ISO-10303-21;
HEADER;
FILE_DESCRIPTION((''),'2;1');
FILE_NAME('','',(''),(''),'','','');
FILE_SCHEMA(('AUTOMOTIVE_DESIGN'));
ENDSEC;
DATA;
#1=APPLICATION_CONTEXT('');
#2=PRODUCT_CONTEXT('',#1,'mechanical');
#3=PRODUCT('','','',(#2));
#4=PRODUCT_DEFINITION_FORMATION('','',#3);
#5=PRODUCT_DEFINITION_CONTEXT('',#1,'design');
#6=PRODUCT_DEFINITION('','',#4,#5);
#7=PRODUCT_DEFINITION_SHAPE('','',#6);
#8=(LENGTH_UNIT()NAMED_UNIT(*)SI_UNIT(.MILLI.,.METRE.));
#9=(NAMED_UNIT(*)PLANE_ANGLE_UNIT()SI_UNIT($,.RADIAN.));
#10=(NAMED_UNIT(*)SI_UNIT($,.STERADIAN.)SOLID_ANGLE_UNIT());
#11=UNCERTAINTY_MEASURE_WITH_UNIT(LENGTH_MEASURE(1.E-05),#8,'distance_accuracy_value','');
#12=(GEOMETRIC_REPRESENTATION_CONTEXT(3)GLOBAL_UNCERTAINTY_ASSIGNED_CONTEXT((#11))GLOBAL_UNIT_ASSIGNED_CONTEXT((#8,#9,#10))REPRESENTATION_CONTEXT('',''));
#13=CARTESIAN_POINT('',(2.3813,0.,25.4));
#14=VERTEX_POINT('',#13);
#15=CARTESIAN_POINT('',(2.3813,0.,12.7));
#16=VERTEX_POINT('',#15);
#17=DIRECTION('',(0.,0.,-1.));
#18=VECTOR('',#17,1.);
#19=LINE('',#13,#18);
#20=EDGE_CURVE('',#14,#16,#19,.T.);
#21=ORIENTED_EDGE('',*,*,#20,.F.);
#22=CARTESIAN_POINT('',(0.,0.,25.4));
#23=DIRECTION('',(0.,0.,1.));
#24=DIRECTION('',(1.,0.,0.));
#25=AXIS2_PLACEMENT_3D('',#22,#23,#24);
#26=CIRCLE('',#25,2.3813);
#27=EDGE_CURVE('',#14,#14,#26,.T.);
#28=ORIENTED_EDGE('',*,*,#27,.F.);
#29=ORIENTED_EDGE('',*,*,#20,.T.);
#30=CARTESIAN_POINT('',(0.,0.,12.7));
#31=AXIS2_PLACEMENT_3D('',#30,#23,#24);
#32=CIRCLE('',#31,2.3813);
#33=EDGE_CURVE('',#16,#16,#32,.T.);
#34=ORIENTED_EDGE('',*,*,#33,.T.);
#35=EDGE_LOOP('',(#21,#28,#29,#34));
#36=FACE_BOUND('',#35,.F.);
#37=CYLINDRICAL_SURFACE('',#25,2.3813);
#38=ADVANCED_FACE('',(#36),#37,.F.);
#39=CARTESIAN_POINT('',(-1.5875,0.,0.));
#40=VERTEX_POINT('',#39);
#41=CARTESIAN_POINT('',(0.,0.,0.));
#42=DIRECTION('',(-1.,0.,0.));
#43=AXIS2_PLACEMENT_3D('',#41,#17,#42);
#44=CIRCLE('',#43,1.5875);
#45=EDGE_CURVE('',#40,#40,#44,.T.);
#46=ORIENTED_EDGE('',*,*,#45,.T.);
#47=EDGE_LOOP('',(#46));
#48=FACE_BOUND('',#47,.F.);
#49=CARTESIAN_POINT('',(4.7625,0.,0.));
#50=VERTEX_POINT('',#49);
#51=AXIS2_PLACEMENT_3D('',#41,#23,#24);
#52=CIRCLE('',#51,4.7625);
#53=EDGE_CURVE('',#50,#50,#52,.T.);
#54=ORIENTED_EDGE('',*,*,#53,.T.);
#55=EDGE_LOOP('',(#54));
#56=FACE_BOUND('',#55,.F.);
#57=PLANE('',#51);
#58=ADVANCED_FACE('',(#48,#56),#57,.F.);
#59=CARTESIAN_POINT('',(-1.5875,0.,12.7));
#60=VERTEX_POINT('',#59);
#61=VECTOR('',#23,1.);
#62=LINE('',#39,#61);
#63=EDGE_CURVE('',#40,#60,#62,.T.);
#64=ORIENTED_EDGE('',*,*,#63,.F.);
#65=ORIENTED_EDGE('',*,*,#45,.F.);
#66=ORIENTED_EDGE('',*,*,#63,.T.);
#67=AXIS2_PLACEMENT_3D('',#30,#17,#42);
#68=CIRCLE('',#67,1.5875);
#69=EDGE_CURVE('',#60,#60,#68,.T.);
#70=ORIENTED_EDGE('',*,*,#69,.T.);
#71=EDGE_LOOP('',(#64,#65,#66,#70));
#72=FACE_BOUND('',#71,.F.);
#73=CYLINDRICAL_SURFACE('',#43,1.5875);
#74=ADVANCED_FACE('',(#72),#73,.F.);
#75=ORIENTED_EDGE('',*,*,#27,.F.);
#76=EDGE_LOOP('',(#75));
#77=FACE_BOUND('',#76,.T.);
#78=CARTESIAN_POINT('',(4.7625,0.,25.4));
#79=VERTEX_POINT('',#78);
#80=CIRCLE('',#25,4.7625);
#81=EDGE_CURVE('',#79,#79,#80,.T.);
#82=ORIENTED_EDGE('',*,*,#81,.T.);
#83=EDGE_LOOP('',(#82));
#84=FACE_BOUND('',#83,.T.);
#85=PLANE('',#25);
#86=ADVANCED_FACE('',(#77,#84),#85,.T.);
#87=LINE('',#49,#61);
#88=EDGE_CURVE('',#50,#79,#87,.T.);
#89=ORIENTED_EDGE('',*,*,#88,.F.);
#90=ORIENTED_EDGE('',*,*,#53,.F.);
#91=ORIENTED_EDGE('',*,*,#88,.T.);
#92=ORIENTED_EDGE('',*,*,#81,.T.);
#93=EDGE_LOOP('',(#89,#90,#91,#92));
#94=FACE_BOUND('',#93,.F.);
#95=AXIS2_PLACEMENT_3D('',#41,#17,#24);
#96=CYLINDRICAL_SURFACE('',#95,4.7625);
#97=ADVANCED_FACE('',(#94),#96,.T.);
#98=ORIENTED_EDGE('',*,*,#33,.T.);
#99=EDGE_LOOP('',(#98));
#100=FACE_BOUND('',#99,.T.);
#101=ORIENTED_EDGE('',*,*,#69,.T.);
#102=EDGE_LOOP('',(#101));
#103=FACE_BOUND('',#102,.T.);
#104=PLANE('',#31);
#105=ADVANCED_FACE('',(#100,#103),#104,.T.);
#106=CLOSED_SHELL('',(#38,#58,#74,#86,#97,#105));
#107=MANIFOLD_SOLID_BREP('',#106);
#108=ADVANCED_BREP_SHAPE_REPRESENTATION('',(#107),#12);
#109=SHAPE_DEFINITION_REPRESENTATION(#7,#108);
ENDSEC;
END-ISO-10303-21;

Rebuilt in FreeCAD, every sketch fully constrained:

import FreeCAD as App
import Part
import Sketcher

V = App.Vector
Q = App.Units.Quantity

doc = App.newDocument("Part")
body = doc.addObject("PartDesign::Body", "Body")

sketch1 = body.newObject("Sketcher::SketchObject", "Sketch")
sketch1.AttachmentSupport = (doc.getObject("XY_Plane"), [""])
sketch1.MapMode = "FlatFace"
sketch1.addGeometry(Part.Circle(V(0, 0, 0), V(0, 0, 1), 4.8), False)
sketch1.addConstraint([
    Sketcher.Constraint("Coincident", 0, 3, -1, 1),
    Sketcher.Constraint("Diameter", 0, Q("0.375 in")),
])
pad1 = body.newObject("PartDesign::Pad", "Pad")
pad1.Profile = sketch1
pad1.Length = Q("1 in")

sketch2 = body.newObject("Sketcher::SketchObject", "Sketch001")
sketch2.AttachmentSupport = (doc.getObject("XY_Plane"), [""])
sketch2.MapMode = "FlatFace"
sketch2.AttachmentOffset = App.Placement(V(0, 0, 1 * 25.4), App.Rotation())
sketch2.addGeometry(Part.Circle(V(0, 0, 0), V(0, 0, 1), 2.4), False)
sketch2.addConstraint([
    Sketcher.Constraint("Coincident", 0, 3, -1, 1),
    Sketcher.Constraint("Diameter", 0, Q("0.1875 in")),
])
pocket1 = body.newObject("PartDesign::Pocket", "Pocket")
pocket1.Profile = sketch2
pocket1.Length = Q("0.5 in")

sketch3 = body.newObject("Sketcher::SketchObject", "Sketch002")
sketch3.AttachmentSupport = (doc.getObject("XY_Plane"), [""])
sketch3.MapMode = "FlatFace"
sketch3.addGeometry(Part.Circle(V(0, 0, 0), V(0, 0, 1), 1.6), False)
sketch3.addConstraint([
    Sketcher.Constraint("Coincident", 0, 3, -1, 1),
    Sketcher.Constraint("Diameter", 0, Q("0.125 in")),
])
pocket2 = body.newObject("PartDesign::Pocket", "Pocket001")
pocket2.Profile = sketch3
pocket2.Length = Q("0.5 in")
pocket2.Reversed = True

doc.recompute()
